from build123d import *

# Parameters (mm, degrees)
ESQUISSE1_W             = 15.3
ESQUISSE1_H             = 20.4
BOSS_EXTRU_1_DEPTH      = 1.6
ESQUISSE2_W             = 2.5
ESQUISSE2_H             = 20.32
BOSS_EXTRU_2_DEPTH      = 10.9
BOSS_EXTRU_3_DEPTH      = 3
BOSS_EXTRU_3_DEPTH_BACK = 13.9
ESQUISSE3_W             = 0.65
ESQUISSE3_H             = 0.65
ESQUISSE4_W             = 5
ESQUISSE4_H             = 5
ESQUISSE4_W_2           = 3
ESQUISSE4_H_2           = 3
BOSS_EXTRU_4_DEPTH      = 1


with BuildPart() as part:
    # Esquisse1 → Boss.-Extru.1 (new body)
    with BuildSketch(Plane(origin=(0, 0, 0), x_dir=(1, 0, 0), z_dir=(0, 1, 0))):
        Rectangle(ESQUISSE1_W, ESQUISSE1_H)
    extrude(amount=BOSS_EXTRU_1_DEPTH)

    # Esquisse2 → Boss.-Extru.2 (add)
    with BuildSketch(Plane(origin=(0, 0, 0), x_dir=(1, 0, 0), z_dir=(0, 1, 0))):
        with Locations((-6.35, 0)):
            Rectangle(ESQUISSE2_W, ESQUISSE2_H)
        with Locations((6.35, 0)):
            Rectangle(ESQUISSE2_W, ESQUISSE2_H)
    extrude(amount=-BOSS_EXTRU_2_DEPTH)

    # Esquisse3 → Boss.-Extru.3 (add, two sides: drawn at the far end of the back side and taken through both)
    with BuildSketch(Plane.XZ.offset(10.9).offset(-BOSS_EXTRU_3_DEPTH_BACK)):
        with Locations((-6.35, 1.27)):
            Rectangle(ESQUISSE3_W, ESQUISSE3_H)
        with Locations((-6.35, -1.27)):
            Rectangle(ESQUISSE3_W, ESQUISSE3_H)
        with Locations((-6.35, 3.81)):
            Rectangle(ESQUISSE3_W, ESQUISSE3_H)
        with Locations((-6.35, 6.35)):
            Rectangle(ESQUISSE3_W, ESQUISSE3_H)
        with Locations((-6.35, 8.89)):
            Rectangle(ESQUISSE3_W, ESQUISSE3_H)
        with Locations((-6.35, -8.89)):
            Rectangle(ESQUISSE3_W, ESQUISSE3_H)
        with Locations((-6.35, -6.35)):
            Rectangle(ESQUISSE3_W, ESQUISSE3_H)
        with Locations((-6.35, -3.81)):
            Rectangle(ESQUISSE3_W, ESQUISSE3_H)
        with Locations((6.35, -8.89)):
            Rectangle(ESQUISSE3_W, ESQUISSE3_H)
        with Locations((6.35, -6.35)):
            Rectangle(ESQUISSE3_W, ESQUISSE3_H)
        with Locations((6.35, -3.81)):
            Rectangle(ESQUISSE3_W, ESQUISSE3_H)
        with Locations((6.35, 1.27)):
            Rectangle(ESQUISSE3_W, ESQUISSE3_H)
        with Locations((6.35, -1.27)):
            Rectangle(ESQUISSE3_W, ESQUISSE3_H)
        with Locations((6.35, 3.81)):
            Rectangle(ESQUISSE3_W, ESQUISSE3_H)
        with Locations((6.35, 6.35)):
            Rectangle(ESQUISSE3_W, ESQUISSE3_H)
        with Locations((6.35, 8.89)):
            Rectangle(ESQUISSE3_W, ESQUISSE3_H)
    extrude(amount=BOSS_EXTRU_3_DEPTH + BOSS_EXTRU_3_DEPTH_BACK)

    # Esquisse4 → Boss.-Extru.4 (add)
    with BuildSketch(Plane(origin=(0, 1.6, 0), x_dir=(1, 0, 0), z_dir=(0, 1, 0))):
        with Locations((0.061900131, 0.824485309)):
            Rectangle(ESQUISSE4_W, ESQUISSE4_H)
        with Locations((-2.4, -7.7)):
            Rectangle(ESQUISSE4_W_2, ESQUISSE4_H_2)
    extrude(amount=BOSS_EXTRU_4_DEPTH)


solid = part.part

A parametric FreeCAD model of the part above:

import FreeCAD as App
import Part
import Sketcher
from FreeCAD import Vector
Q = App.Units.Quantity

doc = App.newDocument("Part")
body = doc.addObject("PartDesign::Body", "Body")

# Sketch on XZ plane
sketch1 = doc.addObject("Sketcher::SketchObject", "Sketch")
body.addObject(sketch1)
sketch1.AttachmentSupport = (doc.XZ_Plane, [""])
sketch1.MapMode = "FlatFace"
sketch1.addGeometry(Part.LineSegment(Vector(-8, -10, 0), Vector(-8, 10, 0)), False)
sketch1.addGeometry(Part.LineSegment(Vector(-8, 10, 0), Vector(8, 10, 0)), False)
sketch1.addGeometry(Part.LineSegment(Vector(8, 10, 0), Vector(8, -10, 0)), False)
sketch1.addGeometry(Part.LineSegment(Vector(8, -10, 0), Vector(-8, -10, 0)), False)
sketch1.addConstraint(Sketcher.Constraint("Coincident", 0, 2, 1, 1))
sketch1.addConstraint(Sketcher.Constraint("Coincident", 1, 2, 2, 1))
sketch1.addConstraint(Sketcher.Constraint("Coincident", 2, 2, 3, 1))
sketch1.addConstraint(Sketcher.Constraint("Coincident", 3, 2, 0, 1))
sketch1.addConstraint(Sketcher.Constraint("Vertical", 0))
sketch1.addConstraint(Sketcher.Constraint("Horizontal", 1))
sketch1.addConstraint(Sketcher.Constraint("Vertical", 2))
sketch1.addConstraint(Sketcher.Constraint("Horizontal", 3))
sketch1.addConstraint(Sketcher.Constraint("Symmetric", 0, 2, 2, 2, -1, 1))
sketch1.addConstraint(Sketcher.Constraint("DistanceX", 1, 1, 1, 2, Q("15.3 mm")))
sketch1.addConstraint(Sketcher.Constraint("DistanceY", 0, 1, 0, 2, Q("20.4 mm")))
pad1 = doc.addObject("PartDesign::Pad", "Pad")
body.addObject(pad1)
pad1.Profile = sketch1
pad1.Length = 1.6
pad1.Reversed = True

# Sketch on XZ plane
sketch2 = doc.addObject("Sketcher::SketchObject", "Sketch001")
body.addObject(sketch2)
sketch2.AttachmentSupport = (doc.XZ_Plane, [""])
sketch2.MapMode = "FlatFace"
sketch2.addGeometry(Part.LineSegment(Vector(-7.6, -10.2, 0), Vector(-7.6, 10.2, 0)), False)
sketch2.addGeometry(Part.LineSegment(Vector(-7.6, 10.2, 0), Vector(-5.1, 10.2, 0)), False)
sketch2.addGeometry(Part.LineSegment(Vector(-5.1, 10.2, 0), Vector(-5.1, -10.2, 0)), False)
sketch2.addGeometry(Part.LineSegment(Vector(-5.1, -10.2, 0), Vector(-7.6, -10.2, 0)), False)
sketch2.addGeometry(Part.LineSegment(Vector(5.1, -10.2, 0), Vector(5.1, 10.2, 0)), False)
sketch2.addGeometry(Part.LineSegment(Vector(5.1, 10.2, 0), Vector(7.6, 10.2, 0)), False)
sketch2.addGeometry(Part.LineSegment(Vector(7.6, 10.2, 0), Vector(7.6, -10.2, 0)), False)
sketch2.addGeometry(Part.LineSegment(Vector(7.6, -10.2, 0), Vector(5.1, -10.2, 0)), False)
sketch2.addConstraint(Sketcher.Constraint("Coincident", 0, 2, 1, 1))
sketch2.addConstraint(Sketcher.Constraint("Coincident", 1, 2, 2, 1))
sketch2.addConstraint(Sketcher.Constraint("Coincident", 2, 2, 3, 1))
sketch2.addConstraint(Sketcher.Constraint("Coincident", 3, 2, 0, 1))
sketch2.addConstraint(Sketcher.Constraint("Coincident", 4, 2, 5, 1))
sketch2.addConstraint(Sketcher.Constraint("Coincident", 5, 2, 6, 1))
sketch2.addConstraint(Sketcher.Constraint("Coincident", 6, 2, 7, 1))
sketch2.addConstraint(Sketcher.Constraint("Coincident", 7, 2, 4, 1))
sketch2.addConstraint(Sketcher.Constraint("Vertical", 0))
sketch2.addConstraint(Sketcher.Constraint("Horizontal", 1))
sketch2.addConstraint(Sketcher.Constraint("Vertical", 2))
sketch2.addConstraint(Sketcher.Constraint("Horizontal", 3))
sketch2.addConstraint(Sketcher.Constraint("Vertical", 4))
sketch2.addConstraint(Sketcher.Constraint("Horizontal", 5))
sketch2.addConstraint(Sketcher.Constraint("Vertical", 6))
sketch2.addConstraint(Sketcher.Constraint("Horizontal", 7))
sketch2.addConstraint(Sketcher.Constraint("Symmetric", 2, 2, 4, 2, -1, 1))
sketch2.addConstraint(Sketcher.Constraint("Symmetric", 0, 2, 6, 2, -1, 1))
sketch2.addConstraint(Sketcher.Constraint("Horizontal", 1, 2, 4, 2))
sketch2.addConstraint(Sketcher.Constraint("DistanceX", 1, 1, 1, 2, Q("2.5 mm")))
sketch2.addConstraint(Sketcher.Constraint("DistanceY", 0, 1, 0, 2, Q("20.32 mm")))
sketch2.addConstraint(Sketcher.Constraint("DistanceX", 0, 2, -1, 1, Q("7.6 mm")))
pad2 = doc.addObject("PartDesign::Pad", "Pad001")
body.addObject(pad2)
pad2.Profile = sketch2
pad2.Length = 10.9

# Sketch on XZ plane
sketch3 = doc.addObject("Sketcher::SketchObject", "Sketch002")
body.addObject(sketch3)
sketch3.AttachmentSupport = (doc.XZ_Plane, [""])
sketch3.MapMode = "FlatFace"
sketch3.AttachmentOffset = App.Placement(Vector(0, 0, 10.9), App.Rotation())
sketch3.addGeometry(Part.LineSegment(Vector(-6.7, 1.6, 0), Vector(-6.7, 0.9, 0)), False)
sketch3.addGeometry(Part.LineSegment(Vector(-6.7, 0.9, 0), Vector(-6, 0.9, 0)), False)
sketch3.addGeometry(Part.LineSegment(Vector(-6, 0.9, 0), Vector(-6, 1.6, 0)), False)
sketch3.addGeometry(Part.LineSegment(Vector(-6, 1.6, 0), Vector(-6.7, 1.6, 0)), False)
sketch3.addGeometry(Part.LineSegment(Vector(-6.7, -0.9, 0), Vector(-6.7, -1.6, 0)), False)
sketch3.addGeometry(Part.LineSegment(Vector(-6.7, -1.6, 0), Vector(-6, -1.6, 0)), False)
sketch3.addGeometry(Part.LineSegment(Vector(-6, -1.6, 0), Vector(-6, -0.9, 0)), False)
sketch3.addGeometry(Part.LineSegment(Vector(-6, -0.9, 0), Vector(-6.7, -0.9, 0)), False)
sketch3.addGeometry(Part.LineSegment(Vector(-6.7, 4.1, 0), Vector(-6.7, 3.5, 0)), False)
sketch3.addGeometry(Part.LineSegment(Vector(-6.7, 3.5, 0), Vector(-6, 3.5, 0)), False)
sketch3.addGeometry(Part.LineSegment(Vector(-6, 3.5, 0), Vector(-6, 4.1, 0)), False)
sketch3.addGeometry(Part.LineSegment(Vector(-6, 4.1, 0), Vector(-6.7, 4.1, 0)), False)
sketch3.addGeometry(Part.LineSegment(Vector(-6.7, 6.7, 0), Vector(-6.7, 6, 0)), False)
sketch3.addGeometry(Part.LineSegment(Vector(-6.7, 6, 0), Vector(-6, 6, 0)), False)
sketch3.addGeometry(Part.LineSegment(Vector(-6, 6, 0), Vector(-6, 6.7, 0)), False)
sketch3.addGeometry(Part.LineSegment(Vector(-6, 6.7, 0), Vector(-6.7, 6.7, 0)), False)
sketch3.addGeometry(Part.LineSegment(Vector(-6.7, 9.2, 0), Vector(-6.7, 8.6, 0)), False)
sketch3.addGeometry(Part.LineSegment(Vector(-6.7, 8.6, 0), Vector(-6, 8.6, 0)), False)
sketch3.addGeometry(Part.LineSegment(Vector(-6, 8.6, 0), Vector(-6, 9.2, 0)), False)
sketch3.addGeometry(Part.LineSegment(Vector(-6, 9.2, 0), Vector(-6.7, 9.2, 0)), False)
sketch3.addGeometry(Part.LineSegment(Vector(-6.7, -8.6, 0), Vector(-6.7, -9.2, 0)), False)
sketch3.addGeometry(Part.LineSegment(Vector(-6.7, -9.2, 0), Vector(-6, -9.2, 0)), False)
sketch3.addGeometry(Part.LineSegment(Vector(-6, -9.2, 0), Vector(-6, -8.6, 0)), False)
sketch3.addGeometry(Part.LineSegment(Vector(-6, -8.6, 0), Vector(-6.7, -8.6, 0)), False)
sketch3.addGeometry(Part.LineSegment(Vector(-6.7, -6, 0), Vector(-6.7, -6.7, 0)), False)
sketch3.addGeometry(Part.LineSegment(Vector(-6.7, -6.7, 0), Vector(-6, -6.7, 0)), False)
sketch3.addGeometry(Part.LineSegment(Vector(-6, -6.7, 0), Vector(-6, -6, 0)), False)
sketch3.addGeometry(Part.LineSegment(Vector(-6, -6, 0), Vector(-6.7, -6, 0)), False)
sketch3.addGeometry(Part.LineSegment(Vector(-6.7, -3.5, 0), Vector(-6.7, -4.1, 0)), False)
sketch3.addGeometry(Part.LineSegment(Vector(-6.7, -4.1, 0), Vector(-6, -4.1, 0)), False)
sketch3.addGeometry(Part.LineSegment(Vector(-6, -4.1, 0), Vector(-6, -3.5, 0)), False)
sketch3.addGeometry(Part.LineSegment(Vector(-6, -3.5, 0), Vector(-6.7, -3.5, 0)), False)
sketch3.addGeometry(Part.LineSegment(Vector(6, -8.6, 0), Vector(6, -9.2, 0)), False)
sketch3.addGeometry(Part.LineSegment(Vector(6, -9.2, 0), Vector(6.7, -9.2, 0)), False)
sketch3.addGeometry(Part.LineSegment(Vector(6.7, -9.2, 0), Vector(6.7, -8.6, 0)), False)
sketch3.addGeometry(Part.LineSegment(Vector(6.7, -8.6, 0), Vector(6, -8.6, 0)), False)
sketch3.addGeometry(Part.LineSegment(Vector(6, -6, 0), Vector(6, -6.7, 0)), False)
sketch3.addGeometry(Part.LineSegment(Vector(6, -6.7, 0), Vector(6.7, -6.7, 0)), False)
sketch3.addGeometry(Part.LineSegment(Vector(6.7, -6.7, 0), Vector(6.7, -6, 0)), False)
sketch3.addGeometry(Part.LineSegment(Vector(6.7, -6, 0), Vector(6, -6, 0)), False)
sketch3.addGeometry(Part.LineSegment(Vector(6, -3.5, 0), Vector(6, -4.1, 0)), False)
sketch3.addGeometry(Part.LineSegment(Vector(6, -4.1, 0), Vector(6.7, -4.1, 0)), False)
sketch3.addGeometry(Part.LineSegment(Vector(6.7, -4.1, 0), Vector(6.7, -3.5, 0)), False)
sketch3.addGeometry(Part.LineSegment(Vector(6.7, -3.5, 0), Vector(6, -3.5, 0)), False)
sketch3.addGeometry(Part.LineSegment(Vector(6, 1.6, 0), Vector(6, 0.9, 0)), False)
sketch3.addGeometry(Part.LineSegment(Vector(6, 0.9, 0), Vector(6.7, 0.9, 0)), False)
sketch3.addGeometry(Part.LineSegment(Vector(6.7, 0.9, 0), Vector(6.7, 1.6, 0)), False)
sketch3.addGeometry(Part.LineSegment(Vector(6.7, 1.6, 0), Vector(6, 1.6, 0)), False)
sketch3.addGeometry(Part.LineSegment(Vector(6, -0.9, 0), Vector(6, -1.6, 0)), False)
sketch3.addGeometry(Part.LineSegment(Vector(6, -1.6, 0), Vector(6.7, -1.6, 0)), False)
sketch3.addGeometry(Part.LineSegment(Vector(6.7, -1.6, 0), Vector(6.7, -0.9, 0)), False)
sketch3.addGeometry(Part.LineSegment(Vector(6.7, -0.9, 0), Vector(6, -0.9, 0)), False)
sketch3.addGeometry(Part.LineSegment(Vector(6, 4.1, 0), Vector(6, 3.5, 0)), False)
sketch3.addGeometry(Part.LineSegment(Vector(6, 3.5, 0), Vector(6.7, 3.5, 0)), False)
sketch3.addGeometry(Part.LineSegment(Vector(6.7, 3.5, 0), Vector(6.7, 4.1, 0)), False)
sketch3.addGeometry(Part.LineSegment(Vector(6.7, 4.1, 0), Vector(6, 4.1, 0)), False)
sketch3.addGeometry(Part.LineSegment(Vector(6, 6.7, 0), Vector(6, 6, 0)), False)
sketch3.addGeometry(Part.LineSegment(Vector(6, 6, 0), Vector(6.7, 6, 0)), False)
sketch3.addGeometry(Part.LineSegment(Vector(6.7, 6, 0), Vector(6.7, 6.7, 0)), False)
sketch3.addGeometry(Part.LineSegment(Vector(6.7, 6.7, 0), Vector(6, 6.7, 0)), False)
sketch3.addGeometry(Part.LineSegment(Vector(6, 9.2, 0), Vector(6, 8.6, 0)), False)
sketch3.addGeometry(Part.LineSegment(Vector(6, 8.6, 0), Vector(6.7, 8.6, 0)), False)
sketch3.addGeometry(Part.LineSegment(Vector(6.7, 8.6, 0), Vector(6.7, 9.2, 0)), False)
sketch3.addGeometry(Part.LineSegment(Vector(6.7, 9.2, 0), Vector(6, 9.2, 0)), False)
sketch3.addConstraint(Sketcher.Constraint("Coincident", 0, 2, 1, 1))
sketch3.addConstraint(Sketcher.Constraint("Coincident", 1, 2, 2, 1))
sketch3.addConstraint(Sketcher.Constraint("Coincident", 2, 2, 3, 1))
sketch3.addConstraint(Sketcher.Constraint("Coincident", 3, 2, 0, 1))
sketch3.addConstraint(Sketcher.Constraint("Coincident", 4, 2, 5, 1))
sketch3.addConstraint(Sketcher.Constraint("Coincident", 5, 2, 6, 1))
sketch3.addConstraint(Sketcher.Constraint("Coincident", 6, 2, 7, 1))
sketch3.addConstraint(Sketcher.Constraint("Coincident", 7, 2, 4, 1))
sketch3.addConstraint(Sketcher.Constraint("Coincident", 8, 2, 9, 1))
sketch3.addConstraint(Sketcher.Constraint("Coincident", 9, 2, 10, 1))
sketch3.addConstraint(Sketcher.Constraint("Coincident", 10, 2, 11, 1))
sketch3.addConstraint(Sketcher.Constraint("Coincident", 11, 2, 8, 1))
sketch3.addConstraint(Sketcher.Constraint("Coincident", 12, 2, 13, 1))
sketch3.addConstraint(Sketcher.Constraint("Coincident", 13, 2, 14, 1))
sketch3.addConstraint(Sketcher.Constraint("Coincident", 14, 2, 15, 1))
sketch3.addConstraint(Sketcher.Constraint("Coincident", 15, 2, 12, 1))
sketch3.addConstraint(Sketcher.Constraint("Coincident", 16, 2, 17, 1))
sketch3.addConstraint(Sketcher.Constraint("Coincident", 17, 2, 18, 1))
sketch3.addConstraint(Sketcher.Constraint("Coincident", 18, 2, 19, 1))
sketch3.addConstraint(Sketcher.Constraint("Coincident", 19, 2, 16, 1))
sketch3.addConstraint(Sketcher.Constraint("Coincident", 20, 2, 21, 1))
sketch3.addConstraint(Sketcher.Constraint("Coincident", 21, 2, 22, 1))
sketch3.addConstraint(Sketcher.Constraint("Coincident", 22, 2, 23, 1))
sketch3.addConstraint(Sketcher.Constraint("Coincident", 23, 2, 20, 1))
sketch3.addConstraint(Sketcher.Constraint("Coincident", 24, 2, 25, 1))
sketch3.addConstraint(Sketcher.Constraint("Coincident", 25, 2, 26, 1))
sketch3.addConstraint(Sketcher.Constraint("Coincident", 26, 2, 27, 1))
sketch3.addConstraint(Sketcher.Constraint("Coincident", 27, 2, 24, 1))
sketch3.addConstraint(Sketcher.Constraint("Coincident", 28, 2, 29, 1))
sketch3.addConstraint(Sketcher.Constraint("Coincident", 29, 2, 30, 1))
sketch3.addConstraint(Sketcher.Constraint("Coincident", 30, 2, 31, 1))
sketch3.addConstraint(Sketcher.Constraint("Coincident", 31, 2, 28, 1))
sketch3.addConstraint(Sketcher.Constraint("Coincident", 32, 2, 33, 1))
sketch3.addConstraint(Sketcher.Constraint("Coincident", 33, 2, 34, 1))
sketch3.addConstraint(Sketcher.Constraint("Coincident", 34, 2, 35, 1))
sketch3.addConstraint(Sketcher.Constraint("Coincident", 35, 2, 32, 1))
sketch3.addConstraint(Sketcher.Constraint("Coincident", 36, 2, 37, 1))
sketch3.addConstraint(Sketcher.Constraint("Coincident", 37, 2, 38, 1))
sketch3.addConstraint(Sketcher.Constraint("Coincident", 38, 2, 39, 1))
sketch3.addConstraint(Sketcher.Constraint("Coincident", 39, 2, 36, 1))
sketch3.addConstraint(Sketcher.Constraint("Coincident", 40, 2, 41, 1))
sketch3.addConstraint(Sketcher.Constraint("Coincident", 41, 2, 42, 1))
sketch3.addConstraint(Sketcher.Constraint("Coincident", 42, 2, 43, 1))
sketch3.addConstraint(Sketcher.Constraint("Coincident", 43, 2, 40, 1))
sketch3.addConstraint(Sketcher.Constraint("Coincident", 44, 2, 45, 1))
sketch3.addConstraint(Sketcher.Constraint("Coincident", 45, 2, 46, 1))
sketch3.addConstraint(Sketcher.Constraint("Coincident", 46, 2, 47, 1))
sketch3.addConstraint(Sketcher.Constraint("Coincident", 47, 2, 44, 1))
sketch3.addConstraint(Sketcher.Constraint("Coincident", 48, 2, 49, 1))
sketch3.addConstraint(Sketcher.Constraint("Coincident", 49, 2, 50, 1))
sketch3.addConstraint(Sketcher.Constraint("Coincident", 50, 2, 51, 1))
sketch3.addConstraint(Sketcher.Constraint("Coincident", 51, 2, 48, 1))
sketch3.addConstraint(Sketcher.Constraint("Coincident", 52, 2, 53, 1))
sketch3.addConstraint(Sketcher.Constraint("Coincident", 53, 2, 54, 1))
sketch3.addConstraint(Sketcher.Constraint("Coincident", 54, 2, 55, 1))
sketch3.addConstraint(Sketcher.Constraint("Coincident", 55, 2, 52, 1))
sketch3.addConstraint(Sketcher.Constraint("Coincident", 56, 2, 57, 1))
sketch3.addConstraint(Sketcher.Constraint("Coincident", 57, 2, 58, 1))
sketch3.addConstraint(Sketcher.Constraint("Coincident", 58, 2, 59, 1))
sketch3.addConstraint(Sketcher.Constraint("Coincident", 59, 2, 56, 1))
sketch3.addConstraint(Sketcher.Constraint("Coincident", 60, 2, 61, 1))
sketch3.addConstraint(Sketcher.Constraint("Coincident", 61, 2, 62, 1))
sketch3.addConstraint(Sketcher.Constraint("Coincident", 62, 2, 63, 1))
sketch3.addConstraint(Sketcher.Constraint("Coincident", 63, 2, 60, 1))
sketch3.addConstraint(Sketcher.Constraint("Vertical", 0))
sketch3.addConstraint(Sketcher.Constraint("Horizontal", 1))
sketch3.addConstraint(Sketcher.Constraint("Vertical", 2))
sketch3.addConstraint(Sketcher.Constraint("Horizontal", 3))
sketch3.addConstraint(Sketcher.Constraint("Vertical", 4))
sketch3.addConstraint(Sketcher.Constraint("Horizontal", 5))
sketch3.addConstraint(Sketcher.Constraint("Vertical", 6))
sketch3.addConstraint(Sketcher.Constraint("Horizontal", 7))
sketch3.addConstraint(Sketcher.Constraint("Vertical", 8))
sketch3.addConstraint(Sketcher.Constraint("Horizontal", 9))
sketch3.addConstraint(Sketcher.Constraint("Vertical", 10))
sketch3.addConstraint(Sketcher.Constraint("Horizontal", 11))
sketch3.addConstraint(Sketcher.Constraint("Vertical", 12))
sketch3.addConstraint(Sketcher.Constraint("Horizontal", 13))
sketch3.addConstraint(Sketcher.Constraint("Vertical", 14))
sketch3.addConstraint(Sketcher.Constraint("Horizontal", 15))
sketch3.addConstraint(Sketcher.Constraint("Vertical", 16))
sketch3.addConstraint(Sketcher.Constraint("Horizontal", 17))
sketch3.addConstraint(Sketcher.Constraint("Vertical", 18))
sketch3.addConstraint(Sketcher.Constraint("Horizontal", 19))
sketch3.addConstraint(Sketcher.Constraint("Vertical", 20))
sketch3.addConstraint(Sketcher.Constraint("Horizontal", 21))
sketch3.addConstraint(Sketcher.Constraint("Vertical", 22))
sketch3.addConstraint(Sketcher.Constraint("Horizontal", 23))
sketch3.addConstraint(Sketcher.Constraint("Vertical", 24))
sketch3.addConstraint(Sketcher.Constraint("Horizontal", 25))
sketch3.addConstraint(Sketcher.Constraint("Vertical", 26))
sketch3.addConstraint(Sketcher.Constraint("Horizontal", 27))
sketch3.addConstraint(Sketcher.Constraint("Vertical", 28))
sketch3.addConstraint(Sketcher.Constraint("Horizontal", 29))
sketch3.addConstraint(Sketcher.Constraint("Vertical", 30))
sketch3.addConstraint(Sketcher.Constraint("Horizontal", 31))
sketch3.addConstraint(Sketcher.Constraint("Vertical", 32))
sketch3.addConstraint(Sketcher.Constraint("Horizontal", 33))
sketch3.addConstraint(Sketcher.Constraint("Vertical", 34))
sketch3.addConstraint(Sketcher.Constraint("Horizontal", 35))
sketch3.addConstraint(Sketcher.Constraint("Vertical", 36))
sketch3.addConstraint(Sketcher.Constraint("Horizontal", 37))
sketch3.addConstraint(Sketcher.Constraint("Vertical", 38))
sketch3.addConstraint(Sketcher.Constraint("Horizontal", 39))
sketch3.addConstraint(Sketcher.Constraint("Vertical", 40))
sketch3.addConstraint(Sketcher.Constraint("Horizontal", 41))
sketch3.addConstraint(Sketcher.Constraint("Vertical", 42))
sketch3.addConstraint(Sketcher.Constraint("Horizontal", 43))
sketch3.addConstraint(Sketcher.Constraint("Vertical", 44))
sketch3.addConstraint(Sketcher.Constraint("Horizontal", 45))
sketch3.addConstraint(Sketcher.Constraint("Vertical", 46))
sketch3.addConstraint(Sketcher.Constraint("Horizontal", 47))
sketch3.addConstraint(Sketcher.Constraint("Vertical", 48))
sketch3.addConstraint(Sketcher.Constraint("Horizontal", 49))
sketch3.addConstraint(Sketcher.Constraint("Vertical", 50))
sketch3.addConstraint(Sketcher.Constraint("Horizontal", 51))
sketch3.addConstraint(Sketcher.Constraint("Vertical", 52))
sketch3.addConstraint(Sketcher.Constraint("Horizontal", 53))
sketch3.addConstraint(Sketcher.Constraint("Vertical", 54))
sketch3.addConstraint(Sketcher.Constraint("Horizontal", 55))
sketch3.addConstraint(Sketcher.Constraint("Vertical", 56))
sketch3.addConstraint(Sketcher.Constraint("Horizontal", 57))
sketch3.addConstraint(Sketcher.Constraint("Vertical", 58))
sketch3.addConstraint(Sketcher.Constraint("Horizontal", 59))
sketch3.addConstraint(Sketcher.Constraint("Vertical", 60))
sketch3.addConstraint(Sketcher.Constraint("Horizontal", 61))
sketch3.addConstraint(Sketcher.Constraint("Vertical", 62))
sketch3.addConstraint(Sketcher.Constraint("Horizontal", 63))
sketch3.addConstraint(Sketcher.Constraint("Symmetric", 18, 2, 32, 2, -1, 1))
sketch3.addConstraint(Sketcher.Constraint("Symmetric", 16, 2, 34, 2, -1, 1))
sketch3.addConstraint(Sketcher.Constraint("Symmetric", 14, 2, 36, 2, -1, 1))
sketch3.addConstraint(Sketcher.Constraint("Symmetric", 12, 2, 38, 2, -1, 1))
sketch3.addConstraint(Sketcher.Constraint("Symmetric", 10, 2, 40, 2, -1, 1))
sketch3.addConstraint(Sketcher.Constraint("Symmetric", 8, 2, 42, 2, -1, 1))
sketch3.addConstraint(Sketcher.Constraint("Symmetric", 6, 2, 44, 2, -1, 1))
sketch3.addConstraint(Sketcher.Constraint("Symmetric", 4, 2, 46, 2, -1, 1))
sketch3.addConstraint(Sketcher.Constraint("Symmetric", 2, 2, 48, 2, -1, 1))
sketch3.addConstraint(Sketcher.Constraint("Symmetric", 0, 2, 50, 2, -1, 1))
sketch3.addConstraint(Sketcher.Constraint("Symmetric", 30, 2, 52, 2, -1, 1))
sketch3.addConstraint(Sketcher.Constraint("Symmetric", 28, 2, 54, 2, -1, 1))
sketch3.addConstraint(Sketcher.Constraint("Symmetric", 26, 2, 56, 2, -1, 1))
sketch3.addConstraint(Sketcher.Constraint("Symmetric", 24, 2, 58, 2, -1, 1))
sketch3.addConstraint(Sketcher.Constraint("Symmetric", 22, 2, 60, 2, -1, 1))
sketch3.addConstraint(Sketcher.Constraint("Symmetric", 20, 2, 62, 2, -1, 1))
sketch3.addConstraint(Sketcher.Constraint("Symmetric", 21, 2, 32, 2, -2))
sketch3.addConstraint(Sketcher.Constraint("Symmetric", 23, 2, 34, 2, -2))
sketch3.addConstraint(Sketcher.Constraint("Symmetric", 25, 2, 36, 2, -2))
sketch3.addConstraint(Sketcher.Constraint("Symmetric", 27, 2, 38, 2, -2))
sketch3.addConstraint(Sketcher.Constraint("Symmetric", 29, 2, 40, 2, -2))
sketch3.addConstraint(Sketcher.Constraint("Symmetric", 31, 2, 42, 2, -2))
sketch3.addConstraint(Sketcher.Constraint("Symmetric", 1, 2, 44, 2, -2))
sketch3.addConstraint(Sketcher.Constraint("Symmetric", 3, 2, 46, 2, -2))
sketch3.addConstraint(Sketcher.Constraint("Vertical", 7, 2, 8, 2))
sketch3.addConstraint(Sketcher.Constraint("Vertical", 6, 2, 9, 2))
sketch3.addConstraint(Sketcher.Constraint("Vertical", 11, 2, 12, 2))
sketch3.addConstraint(Sketcher.Constraint("Vertical", 10, 2, 13, 2))
sketch3.addConstraint(Sketcher.Constraint("Vertical", 15, 2, 16, 2))
sketch3.addConstraint(Sketcher.Constraint("Vertical", 14, 2, 17, 2))
sketch3.addConstraint(Sketcher.Constraint("Equal", 63, 0))
sketch3.addConstraint(Sketcher.Constraint("Equal", 6, 8))
sketch3.addConstraint(Sketcher.Constraint("Equal", 10, 12))
sketch3.addConstraint(Sketcher.Constraint("Equal", 14, 16))
sketch3.addConstraint(Sketcher.Constraint("DistanceX", 1, 1, 1, 2, Q("0.65 mm")))
sketch3.addConstraint(Sketcher.Constraint("DistanceX", 0, 2, -1, 1, Q("6.675 mm")))
sketch3.addConstraint(Sketcher.Constraint("DistanceY", -1, 1, 0, 2, Q("0.945 mm")))
sketch3.addConstraint(Sketcher.Constraint("DistanceY", -1, 1, 8, 2, Q("3.485 mm")))
sketch3.addConstraint(Sketcher.Constraint("DistanceY", -1, 1, 12, 2, Q("6.025 mm")))
sketch3.addConstraint(Sketcher.Constraint("DistanceY", -1, 1, 16, 2, Q("8.565 mm")))
pad3 = doc.addObject("PartDesign::Pad", "Pad002")
body.addObject(pad3)
pad3.Profile = sketch3
pad3.Type = "TwoLengths"
pad3.Length = 3
pad3.Length2 = 13.9

# Sketch on XZ plane
sketch4 = doc.addObject("Sketcher::SketchObject", "Sketch003")
body.addObject(sketch4)
sketch4.AttachmentSupport = (doc.XZ_Plane, [""])
sketch4.MapMode = "FlatFace"
sketch4.AttachmentOffset = App.Placement(Vector(0, 0, -1.6), App.Rotation())
sketch4.addGeometry(Part.LineSegment(Vector(-2.4, -3.3, 0), Vector(-2.4, 1.7, 0)), False)
sketch4.addGeometry(Part.LineSegment(Vector(-2.4, 1.7, 0), Vector(2.6, 1.7, 0)), False)
sketch4.addGeometry(Part.LineSegment(Vector(2.6, 1.7, 0), Vector(2.6, -3.3, 0)), False)
sketch4.addGeometry(Part.LineSegment(Vector(2.6, -3.3, 0), Vector(-2.4, -3.3, 0)), False)
sketch4.addGeometry(Part.LineSegment(Vector(-3.9, 6.2, 0), Vector(-3.9, 9.2, 0)), False)
sketch4.addGeometry(Part.LineSegment(Vector(-3.9, 9.2, 0), Vector(-0.9, 9.2, 0)), False)
sketch4.addGeometry(Part.LineSegment(Vector(-0.9, 9.2, 0), Vector(-0.9, 6.2, 0)), False)
sketch4.addGeometry(Part.LineSegment(Vector(-0.9, 6.2, 0), Vector(-3.9, 6.2, 0)), False)
sketch4.addConstraint(Sketcher.Constraint("Coincident", 0, 2, 1, 1))
sketch4.addConstraint(Sketcher.Constraint("Coincident", 1, 2, 2, 1))
sketch4.addConstraint(Sketcher.Constraint("Coincident", 2, 2, 3, 1))
sketch4.addConstraint(Sketcher.Constraint("Coincident", 3, 2, 0, 1))
sketch4.addConstraint(Sketcher.Constraint("Coincident", 4, 2, 5, 1))
sketch4.addConstraint(Sketcher.Constraint("Coincident", 5, 2, 6, 1))
sketch4.addConstraint(Sketcher.Constraint("Coincident", 6, 2, 7, 1))
sketch4.addConstraint(Sketcher.Constraint("Coincident", 7, 2, 4, 1))
sketch4.addConstraint(Sketcher.Constraint("Vertical", 0))
sketch4.addConstraint(Sketcher.Constraint("Horizontal", 1))
sketch4.addConstraint(Sketcher.Constraint("Vertical", 2))
sketch4.addConstraint(Sketcher.Constraint("Horizontal", 3))
sketch4.addConstraint(Sketcher.Constraint("Vertical", 4))
sketch4.addConstraint(Sketcher.Constraint("Horizontal", 5))
sketch4.addConstraint(Sketcher.Constraint("Vertical", 6))
sketch4.addConstraint(Sketcher.Constraint("Horizontal", 7))
sketch4.addConstraint(Sketcher.Constraint("Equal", 3, 0))
sketch4.addConstraint(Sketcher.Constraint("Equal", 7, 4))
sketch4.addConstraint(Sketcher.Constraint("DistanceX", 1, 1, 1, 2, Q("5 mm")))
sketch4.addConstraint(Sketcher.Constraint("DistanceX", 5, 1, 5, 2, Q("3 mm")))
sketch4.addConstraint(Sketcher.Constraint("DistanceX", 4, 2, -1, 1, Q("3.9 mm")))
sketch4.addConstraint(Sketcher.Constraint("DistanceY", -1, 1, 4, 2, Q("9.2 mm")))
sketch4.addConstraint(Sketcher.Constraint("DistanceX", 0, 2, -1, 1, Q("2.4381 mm")))
sketch4.addConstraint(Sketcher.Constraint("DistanceY", -1, 1, 0, 2, Q("1.675515 mm")))
pad4 = doc.addObject("PartDesign::Pad", "Pad003")
body.addObject(pad4)
pad4.Profile = sketch4
pad4.Length = 1
pad4.Reversed = True

doc.recompute()
